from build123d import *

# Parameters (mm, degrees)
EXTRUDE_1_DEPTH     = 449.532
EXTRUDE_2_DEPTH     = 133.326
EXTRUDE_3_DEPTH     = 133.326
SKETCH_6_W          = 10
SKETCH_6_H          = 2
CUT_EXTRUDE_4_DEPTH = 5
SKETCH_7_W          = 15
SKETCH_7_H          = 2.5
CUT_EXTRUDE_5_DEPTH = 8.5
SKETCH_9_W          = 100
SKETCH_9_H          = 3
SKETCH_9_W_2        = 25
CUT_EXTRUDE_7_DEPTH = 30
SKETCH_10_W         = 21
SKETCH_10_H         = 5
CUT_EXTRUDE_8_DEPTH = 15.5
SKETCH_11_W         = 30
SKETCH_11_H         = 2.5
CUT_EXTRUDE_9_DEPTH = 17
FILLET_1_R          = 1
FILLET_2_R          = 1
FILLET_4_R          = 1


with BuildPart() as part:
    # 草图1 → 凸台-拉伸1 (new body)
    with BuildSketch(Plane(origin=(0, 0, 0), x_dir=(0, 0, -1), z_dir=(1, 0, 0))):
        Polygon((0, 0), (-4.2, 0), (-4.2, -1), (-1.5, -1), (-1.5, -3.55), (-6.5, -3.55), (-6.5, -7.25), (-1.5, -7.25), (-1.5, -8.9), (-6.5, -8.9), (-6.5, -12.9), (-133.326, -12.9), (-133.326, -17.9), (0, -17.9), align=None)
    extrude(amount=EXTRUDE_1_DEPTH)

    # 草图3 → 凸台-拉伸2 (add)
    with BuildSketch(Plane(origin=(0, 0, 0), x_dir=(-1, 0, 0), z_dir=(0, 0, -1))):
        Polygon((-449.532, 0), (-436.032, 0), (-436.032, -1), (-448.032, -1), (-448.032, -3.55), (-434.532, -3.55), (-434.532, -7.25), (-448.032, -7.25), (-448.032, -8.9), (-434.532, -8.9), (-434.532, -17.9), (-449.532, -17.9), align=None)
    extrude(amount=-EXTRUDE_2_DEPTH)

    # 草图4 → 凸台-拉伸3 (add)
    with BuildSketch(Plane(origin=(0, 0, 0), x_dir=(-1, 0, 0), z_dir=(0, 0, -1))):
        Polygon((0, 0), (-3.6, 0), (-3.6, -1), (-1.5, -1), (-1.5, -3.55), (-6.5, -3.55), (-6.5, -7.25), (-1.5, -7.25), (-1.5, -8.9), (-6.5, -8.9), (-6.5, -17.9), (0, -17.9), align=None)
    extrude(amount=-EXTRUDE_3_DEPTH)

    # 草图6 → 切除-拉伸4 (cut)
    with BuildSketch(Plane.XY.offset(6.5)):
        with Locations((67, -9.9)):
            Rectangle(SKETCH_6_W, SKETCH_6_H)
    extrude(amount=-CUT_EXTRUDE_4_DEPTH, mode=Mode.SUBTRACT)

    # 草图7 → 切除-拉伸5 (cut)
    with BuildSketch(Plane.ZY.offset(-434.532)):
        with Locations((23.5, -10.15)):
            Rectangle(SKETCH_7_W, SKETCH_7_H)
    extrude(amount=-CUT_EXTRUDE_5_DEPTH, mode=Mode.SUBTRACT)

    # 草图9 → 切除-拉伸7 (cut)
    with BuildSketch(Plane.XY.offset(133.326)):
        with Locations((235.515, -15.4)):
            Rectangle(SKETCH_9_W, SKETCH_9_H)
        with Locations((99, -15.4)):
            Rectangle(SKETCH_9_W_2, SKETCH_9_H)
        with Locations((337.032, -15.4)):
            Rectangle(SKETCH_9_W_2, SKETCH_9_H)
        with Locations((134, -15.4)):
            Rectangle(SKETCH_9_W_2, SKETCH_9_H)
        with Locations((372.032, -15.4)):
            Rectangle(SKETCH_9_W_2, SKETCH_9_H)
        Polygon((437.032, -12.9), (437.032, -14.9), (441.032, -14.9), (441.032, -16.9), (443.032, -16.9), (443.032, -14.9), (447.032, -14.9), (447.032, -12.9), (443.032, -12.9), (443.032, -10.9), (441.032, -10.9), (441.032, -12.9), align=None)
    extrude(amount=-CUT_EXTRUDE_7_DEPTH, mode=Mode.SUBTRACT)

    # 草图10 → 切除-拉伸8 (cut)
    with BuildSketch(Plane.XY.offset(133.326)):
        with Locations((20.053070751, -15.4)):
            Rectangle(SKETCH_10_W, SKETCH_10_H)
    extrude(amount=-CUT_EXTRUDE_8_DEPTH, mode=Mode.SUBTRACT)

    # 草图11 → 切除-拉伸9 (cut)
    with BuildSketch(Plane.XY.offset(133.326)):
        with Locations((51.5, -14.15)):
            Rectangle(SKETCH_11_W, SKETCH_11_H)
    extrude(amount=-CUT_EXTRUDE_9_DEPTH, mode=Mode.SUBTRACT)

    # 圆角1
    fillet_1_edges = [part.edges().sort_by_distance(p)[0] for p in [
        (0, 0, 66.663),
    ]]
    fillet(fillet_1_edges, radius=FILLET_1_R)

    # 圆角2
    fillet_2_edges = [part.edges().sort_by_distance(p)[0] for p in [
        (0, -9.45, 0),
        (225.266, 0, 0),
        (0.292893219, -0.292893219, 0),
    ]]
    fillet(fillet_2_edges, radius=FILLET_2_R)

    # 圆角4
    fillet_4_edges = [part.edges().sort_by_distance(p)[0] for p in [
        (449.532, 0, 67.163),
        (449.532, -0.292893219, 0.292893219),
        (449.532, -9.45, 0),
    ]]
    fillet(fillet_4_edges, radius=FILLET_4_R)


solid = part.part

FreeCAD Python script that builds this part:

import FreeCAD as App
import Part
import Sketcher

V = App.Vector


def edges_at(feature, points):
    """Names of the edges that pass closest to the given points."""
    edges = feature.Shape.Edges
    near = lambda p: min(range(len(edges)), key=lambda i: edges[i].distToShape(Part.Vertex(*p))[0])
    return sorted({f"Edge{near(p) + 1}" for p in points})


def add_polygon(sketch, points):
    """Adds a closed chain of lines whose ends are joined by coincident constraints."""
    first, n = sketch.GeometryCount, len(points)
    for a, b in zip(points, points[1:] + points[:1]):
        sketch.addGeometry(Part.LineSegment(App.Vector(*a, 0), App.Vector(*b, 0)), False)
    for i in range(n):
        sketch.addConstraint(Sketcher.Constraint("Coincident", first + i, 2, first + (i + 1) % n, 1))

doc = App.newDocument("Part")
params = doc.addObject("Spreadsheet::Sheet", "Params")
for row, (alias, value) in enumerate([
    ("sketch1_width", "1 mm"),
    ("sketch1_width2", "4 mm"),
    ("sketch1_width3", "5 mm"),
    ("sketch1_width4", "3.7 mm"),
    ("sketch1_width5", "17.9 mm"),
    ("pad1_length", "449.532 mm"),
    ("sketch2_width", "15 mm"),
    ("sketch2_width2", "12 mm"),
    ("sketch2_height", "9 mm"),
    ("sketch2_height2", "1 mm"),
    ("sketch2_height3", "17.9 mm"),
    ("pad2_length", "133.326 mm"),
    ("sketch3_width", "5 mm"),
    ("sketch3_height", "1 mm"),
    ("sketch3_height2", "9 mm"),
    ("sketch3_width2", "3.6 mm"),
    ("sketch3_width3", "2.1 mm"),
    ("pad3_length", "133.326 mm"),
    ("sketch4_width", "10 mm"),
    ("sketch4_height", "2 mm"),
    ("pocket1_length", "5 mm"),
    ("sketch5_height", "15 mm"),
    ("sketch5_width", "2.5 mm"),
    ("pocket2_length", "8.5 mm"),
    ("sketch6_width", "100 mm"),
    ("sketch6_width2", "25 mm"),
    ("sketch6_width3", "4 mm"),
    ("sketch6_width4", "2 mm"),
    ("sketch6_height", "3 mm"),
    ("pocket3_length", "30 mm"),
    ("sketch7_width", "21 mm"),
    ("sketch7_height", "5 mm"),
    ("pocket4_length", "15.5 mm"),
    ("sketch8_width", "30 mm"),
    ("sketch8_height", "2.5 mm"),
    ("pocket5_length", "17 mm"),
    ("fillet_radius", "1 mm"),
    ("fillet2_radius", "1 mm"),
    ("fillet3_radius", "1 mm"),
], start=1):
    params.set(f"A{row}", alias)
    params.set(f"B{row}", "=" + value)
    params.setAlias(f"B{row}", alias)

body = doc.addObject("PartDesign::Body", "Body")

sketch1 = body.newObject("Sketcher::SketchObject", "Sketch")
sketch1.AttachmentSupport = (doc.getObject("YZ_Plane"), [""])
sketch1.MapMode = "FlatFace"
add_polygon(sketch1, [(0, 0), (0, 4.2), (-1, 4.2), (-1, 1.5), (-3.5, 1.5), (-3.5, 6.5), (-7.2, 6.5), (-7.2, 1.5), (-8.9, 1.5), (-8.9, 6.5), (-12.9, 6.5), (-12.9, 133.3), (-17.9, 133.3), (-17.9, 0)])
sketch1.addConstraint(Sketcher.Constraint("Vertical", 0))
sketch1.addConstraint(Sketcher.Constraint("Horizontal", 1))
sketch1.addConstraint(Sketcher.Constraint("Vertical", 2))
sketch1.addConstraint(Sketcher.Constraint("Horizontal", 3))
sketch1.addConstraint(Sketcher.Constraint("Vertical", 4))
sketch1.addConstraint(Sketcher.Constraint("Horizontal", 5))
sketch1.addConstraint(Sketcher.Constraint("Vertical", 6))
sketch1.addConstraint(Sketcher.Constraint("Horizontal", 7))
sketch1.addConstraint(Sketcher.Constraint("Vertical", 8))
sketch1.addConstraint(Sketcher.Constraint("Horizontal", 9))
sketch1.addConstraint(Sketcher.Constraint("Vertical", 10))
sketch1.addConstraint(Sketcher.Constraint("Horizontal", 11))
sketch1.addConstraint(Sketcher.Constraint("Vertical", 12))
sketch1.addConstraint(Sketcher.Constraint("Horizontal", 13))
sketch1.addConstraint(Sketcher.Constraint("Coincident", 13, 2, -1, 1))
sketch1.addConstraint(Sketcher.Constraint("Horizontal", 3, 2, 6, 2))
sketch1.addConstraint(Sketcher.Constraint("Horizontal", 5, 2, 8, 2))
sketch1.addConstraint(Sketcher.Constraint("Equal", 11, 4))
sketch1.addConstraint(Sketcher.Constraint("DistanceX", 1, 2, 1, 1, 1.0))
sketch1.addConstraint(Sketcher.Constraint("DistanceX", 9, 2, 9, 1, 4.0))
sketch1.addConstraint(Sketcher.Constraint("DistanceX", 11, 2, 11, 1, 5.0))
sketch1.addConstraint(Sketcher.Constraint("DistanceX", 5, 2, 5, 1, 3.7))
sketch1.addConstraint(Sketcher.Constraint("DistanceX", 13, 1, 13, 2, 17.9))
sketch1.addConstraint(Sketcher.Constraint("DistanceY", 0, 1, 0, 2, 4.2))
sketch1.addConstraint(Sketcher.Constraint("DistanceY", 2, 2, 2, 1, 2.7))
sketch1.addConstraint(Sketcher.Constraint("DistanceX", 3, 2, 3, 1, 2.55))
sketch1.addConstraint(Sketcher.Constraint("DistanceY", 10, 1, 10, 2, 126.826))
sketch1.setExpression("Constraints[32]", "Params.sketch1_width")
sketch1.setExpression("Constraints[33]", "Params.sketch1_width2")
sketch1.setExpression("Constraints[34]", "Params.sketch1_width3")
sketch1.setExpression("Constraints[35]", "Params.sketch1_width4")
sketch1.setExpression("Constraints[36]", "Params.sketch1_width5")
pad1 = body.newObject("PartDesign::Pad", "Pad")
pad1.Profile = sketch1
pad1.setExpression("Length", "Params.pad1_length")

sketch2 = body.newObject("Sketcher::SketchObject", "Sketch001")
sketch2.AttachmentSupport = (doc.getObject("XY_Plane"), [""])
sketch2.MapMode = "FlatFace"
add_polygon(sketch2, [(436, 0), (449.5, 0), (449.5, -17.9), (434.5, -17.9), (434.5, -8.9), (448, -8.9), (448, -7.2), (434.5, -7.2), (434.5, -3.5), (448, -3.5), (448, -1), (436, -1)])
sketch2.addConstraint(Sketcher.Constraint("Horizontal", 0))
sketch2.addConstraint(Sketcher.Constraint("Vertical", 1))
sketch2.addConstraint(Sketcher.Constraint("Horizontal", 2))
sketch2.addConstraint(Sketcher.Constraint("Vertical", 3))
sketch2.addConstraint(Sketcher.Constraint("Horizontal", 4))
sketch2.addConstraint(Sketcher.Constraint("Vertical", 5))
sketch2.addConstraint(Sketcher.Constraint("Horizontal", 6))
sketch2.addConstraint(Sketcher.Constraint("Vertical", 7))
sketch2.addConstraint(Sketcher.Constraint("Horizontal", 8))
sketch2.addConstraint(Sketcher.Constraint("Vertical", 9))
sketch2.addConstraint(Sketcher.Constraint("Horizontal", 10))
sketch2.addConstraint(Sketcher.Constraint("Vertical", 11))
sketch2.addConstraint(Sketcher.Constraint("PointOnObject", 0, 2, -1))
sketch2.addConstraint(Sketcher.Constraint("Vertical", 3, 2, 6, 2))
sketch2.addConstraint(Sketcher.Constraint("Vertical", 5, 2, 8, 2))
sketch2.addConstraint(Sketcher.Constraint("Equal", 0, 4))
sketch2.addConstraint(Sketcher.Constraint("DistanceX", 2, 2, 2, 1, 15.0))
sketch2.addConstraint(Sketcher.Constraint("DistanceX", 10, 2, 10, 1, 12.0))
sketch2.addConstraint(Sketcher.Constraint("DistanceY", 3, 1, 3, 2, 9.0))
sketch2.addConstraint(Sketcher.Constraint("DistanceY", 11, 1, 11, 2, 1.0))
sketch2.addConstraint(Sketcher.Constraint("DistanceY", 1, 2, 1, 1, 17.9))
sketch2.addConstraint(Sketcher.Constraint("DistanceY", 7, 1, 7, 2, 3.7))
sketch2.addConstraint(Sketcher.Constraint("DistanceY", 5, 1, 5, 2, 1.65))
sketch2.addConstraint(Sketcher.Constraint("DistanceX", -1, 1, 0, 2, 449.532))
sketch2.setExpression("Constraints[28]", "Params.sketch2_width")
sketch2.setExpression("Constraints[29]", "Params.sketch2_width2")
sketch2.setExpression("Constraints[30]", "Params.sketch2_height")
sketch2.setExpression("Constraints[31]", "Params.sketch2_height2")
sketch2.setExpression("Constraints[32]", "Params.sketch2_height3")
pad2 = body.newObject("PartDesign::Pad", "Pad001")
pad2.Profile = sketch2
pad2.setExpression("Length", "Params.pad2_length")

sketch3 = body.newObject("Sketcher::SketchObject", "Sketch002")
sketch3.AttachmentSupport = (doc.getObject("XY_Plane"), [""])
sketch3.MapMode = "FlatFace"
add_polygon(sketch3, [(0, 0), (3.6, 0), (3.6, -1), (1.5, -1), (1.5, -3.5), (6.5, -3.5), (6.5, -7.2), (1.5, -7.2), (1.5, -8.9), (6.5, -8.9), (6.5, -17.9), (0, -17.9)])
sketch3.addConstraint(Sketcher.Constraint("Horizontal", 0))
sketch3.addConstraint(Sketcher.Constraint("Vertical", 1))
sketch3.addConstraint(Sketcher.Constraint("Horizontal", 2))
sketch3.addConstraint(Sketcher.Constraint("Vertical", 3))
sketch3.addConstraint(Sketcher.Constraint("Horizontal", 4))
sketch3.addConstraint(Sketcher.Constraint("Vertical", 5))
sketch3.addConstraint(Sketcher.Constraint("Horizontal", 6))
sketch3.addConstraint(Sketcher.Constraint("Vertical", 7))
sketch3.addConstraint(Sketcher.Constraint("Horizontal", 8))
sketch3.addConstraint(Sketcher.Constraint("Vertical", 9))
sketch3.addConstraint(Sketcher.Constraint("Horizontal", 10))
sketch3.addConstraint(Sketcher.Constraint("Vertical", 11))
sketch3.addConstraint(Sketcher.Constraint("Coincident", 11, 2, -1, 1))
sketch3.addConstraint(Sketcher.Constraint("Vertical", 3, 2, 6, 2))
sketch3.addConstraint(Sketcher.Constraint("Vertical", 5, 2, 8, 2))
sketch3.addConstraint(Sketcher.Constraint("DistanceX", 4, 1, 4, 2, 5.0))
sketch3.addConstraint(Sketcher.Constraint("DistanceY", 1, 2, 1, 1, 1.0))
sketch3.addConstraint(Sketcher.Constraint("DistanceY", 9, 2, 9, 1, 9.0))
sketch3.addConstraint(Sketcher.Constraint("DistanceX", 0, 1, 0, 2, 3.6))
sketch3.addConstraint(Sketcher.Constraint("DistanceX", 2, 2, 2, 1, 2.1))
sketch3.addConstraint(Sketcher.Constraint("DistanceY", 5, 2, 5, 1, 3.7))
sketch3.addConstraint(Sketcher.Constraint("DistanceY", 11, 1, 11, 2, 17.9))
sketch3.addConstraint(Sketcher.Constraint("DistanceY", 3, 2, 3, 1, 2.55))
sketch3.setExpression("Constraints[27]", "Params.sketch3_width")
sketch3.setExpression("Constraints[28]", "Params.sketch3_height")
sketch3.setExpression("Constraints[29]", "Params.sketch3_height2")
sketch3.setExpression("Constraints[30]", "Params.sketch3_width2")
sketch3.setExpression("Constraints[31]", "Params.sketch3_width3")
pad3 = body.newObject("PartDesign::Pad", "Pad002")
pad3.Profile = sketch3
pad3.setExpression("Length", "Params.pad3_length")

sketch4 = body.newObject("Sketcher::SketchObject", "Sketch003")
sketch4.AttachmentSupport = (doc.getObject("XY_Plane"), [""])
sketch4.MapMode = "FlatFace"
sketch4.AttachmentOffset = App.Placement(V(0, 0, 6.5), App.Rotation())
add_polygon(sketch4, [(62, -8.9), (62, -10.9), (72, -10.9), (72, -8.9)])
sketch4.addConstraint(Sketcher.Constraint("Vertical", 0))
sketch4.addConstraint(Sketcher.Constraint("Horizontal", 1))
sketch4.addConstraint(Sketcher.Constraint("Vertical", 2))
sketch4.addConstraint(Sketcher.Constraint("Horizontal", 3))
sketch4.addConstraint(Sketcher.Constraint("DistanceX", 1, 1, 1, 2, 10.0))
sketch4.addConstraint(Sketcher.Constraint("DistanceY", 0, 2, 0, 1, 2.0))
sketch4.addConstraint(Sketcher.Constraint("DistanceX", -1, 1, 0, 2, 62.0))
sketch4.addConstraint(Sketcher.Constraint("DistanceY", 0, 2, -1, 1, 10.9))
sketch4.setExpression("Constraints[8]", "Params.sketch4_width")
sketch4.setExpression("Constraints[9]", "Params.sketch4_height")
pocket1 = body.newObject("PartDesign::Pocket", "Pocket")
pocket1.Profile = sketch4
pocket1.setExpression("Length", "Params.pocket1_length")

sketch5 = body.newObject("Sketcher::SketchObject", "Sketch004")
sketch5.AttachmentSupport = (doc.getObject("YZ_Plane"), [""])
sketch5.MapMode = "FlatFace"
sketch5.AttachmentOffset = App.Placement(V(0, 0, 434.532), App.Rotation())
add_polygon(sketch5, [(-8.9, 16), (-11.4, 16), (-11.4, 31), (-8.9, 31)])
sketch5.addConstraint(Sketcher.Constraint("Horizontal", 0))
sketch5.addConstraint(Sketcher.Constraint("Vertical", 1))
sketch5.addConstraint(Sketcher.Constraint("Horizontal", 2))
sketch5.addConstraint(Sketcher.Constraint("Vertical", 3))
sketch5.addConstraint(Sketcher.Constraint("DistanceY", 1, 1, 1, 2, 15.0))
sketch5.addConstraint(Sketcher.Constraint("DistanceX", 0, 2, 0, 1, 2.5))
sketch5.addConstraint(Sketcher.Constraint("DistanceY", -1, 1, 0, 2, 16.0))
sketch5.addConstraint(Sketcher.Constraint("DistanceX", 0, 2, -1, 1, 11.4))
sketch5.setExpression("Constraints[8]", "Params.sketch5_height")
sketch5.setExpression("Constraints[9]", "Params.sketch5_width")
pocket2 = body.newObject("PartDesign::Pocket", "Pocket001")
pocket2.Profile = sketch5
pocket2.setExpression("Length", "Params.pocket2_length")
pocket2.Reversed = True

sketch6 = body.newObject("Sketcher::SketchObject", "Sketch005")
sketch6.AttachmentSupport = (doc.getObject("XY_Plane"), [""])
sketch6.MapMode = "FlatFace"
sketch6.AttachmentOffset = App.Placement(V(0, 0, 133.326), App.Rotation())
add_polygon(sketch6, [(185.5, -13.9), (185.5, -16.9), (285.5, -16.9), (285.5, -13.9)])
add_polygon(sketch6, [(86.5, -13.9), (86.5, -16.9), (111.5, -16.9), (111.5, -13.9)])
add_polygon(sketch6, [(324.5, -13.9), (324.5, -16.9), (349.5, -16.9), (349.5, -13.9)])
add_polygon(sketch6, [(121.5, -13.9), (121.5, -16.9), (146.5, -16.9), (146.5, -13.9)])
add_polygon(sketch6, [(359.5, -13.9), (359.5, -16.9), (384.5, -16.9), (384.5, -13.9)])
add_polygon(sketch6, [(437, -12.9), (437, -14.9), (441, -14.9), (441, -16.9), (443, -16.9), (443, -14.9), (447, -14.9), (447, -12.9), (443, -12.9), (443, -10.9), (441, -10.9), (441, -12.9)])
sketch6.addConstraint(Sketcher.Constraint("Vertical", 0))
sketch6.addConstraint(Sketcher.Constraint("Horizontal", 1))
sketch6.addConstraint(Sketcher.Constraint("Vertical", 2))
sketch6.addConstraint(Sketcher.Constraint("Horizontal", 3))
sketch6.addConstraint(Sketcher.Constraint("Vertical", 4))
sketch6.addConstraint(Sketcher.Constraint("Horizontal", 5))
sketch6.addConstraint(Sketcher.Constraint("Vertical", 6))
sketch6.addConstraint(Sketcher.Constraint("Horizontal", 7))
sketch6.addConstraint(Sketcher.Constraint("Vertical", 8))
sketch6.addConstraint(Sketcher.Constraint("Horizontal", 9))
sketch6.addConstraint(Sketcher.Constraint("Vertical", 10))
sketch6.addConstraint(Sketcher.Constraint("Horizontal", 11))
sketch6.addConstraint(Sketcher.Constraint("Vertical", 12))
sketch6.addConstraint(Sketcher.Constraint("Horizontal", 13))
sketch6.addConstraint(Sketcher.Constraint("Vertical", 14))
sketch6.addConstraint(Sketcher.Constraint("Horizontal", 15))
sketch6.addConstraint(Sketcher.Constraint("Vertical", 16))
sketch6.addConstraint(Sketcher.Constraint("Horizontal", 17))
sketch6.addConstraint(Sketcher.Constraint("Vertical", 18))
sketch6.addConstraint(Sketcher.Constraint("Horizontal", 19))
sketch6.addConstraint(Sketcher.Constraint("Vertical", 20))
sketch6.addConstraint(Sketcher.Constraint("Horizontal", 21))
sketch6.addConstraint(Sketcher.Constraint("Vertical", 22))
sketch6.addConstraint(Sketcher.Constraint("Horizontal", 23))
sketch6.addConstraint(Sketcher.Constraint("Vertical", 24))
sketch6.addConstraint(Sketcher.Constraint("Horizontal", 25))
sketch6.addConstraint(Sketcher.Constraint("Vertical", 26))
sketch6.addConstraint(Sketcher.Constraint("Horizontal", 27))
sketch6.addConstraint(Sketcher.Constraint("Vertical", 28))
sketch6.addConstraint(Sketcher.Constraint("Horizontal", 29))
sketch6.addConstraint(Sketcher.Constraint("Vertical", 30))
sketch6.addConstraint(Sketcher.Constraint("Horizontal", 31))
sketch6.addConstraint(Sketcher.Constraint("Horizontal", 1, 2, 4, 2))
sketch6.addConstraint(Sketcher.Constraint("Horizontal", 3, 2, 6, 2))
sketch6.addConstraint(Sketcher.Constraint("Horizontal", 5, 2, 8, 2))
sketch6.addConstraint(Sketcher.Constraint("Horizontal", 7, 2, 10, 2))
sketch6.addConstraint(Sketcher.Constraint("Horizontal", 9, 2, 12, 2))
sketch6.addConstraint(Sketcher.Constraint("Horizontal", 11, 2, 14, 2))
sketch6.addConstraint(Sketcher.Constraint("Horizontal", 13, 2, 16, 2))
sketch6.addConstraint(Sketcher.Constraint("Horizontal", 15, 2, 18, 2))
sketch6.addConstraint(Sketcher.Constraint("Horizontal", 17, 2, 22, 2))
sketch6.addConstraint(Sketcher.Constraint("Horizontal", 21, 2, 24, 2))
sketch6.addConstraint(Sketcher.Constraint("Horizontal", 27, 2, 30, 2))
sketch6.addConstraint(Sketcher.Constraint("Vertical", 24, 2, 27, 2))
sketch6.addConstraint(Sketcher.Constraint("Vertical", 22, 2, 29, 2))
sketch6.addConstraint(Sketcher.Constraint("Equal", 7, 9))
sketch6.addConstraint(Sketcher.Constraint("Equal", 11, 13))
sketch6.addConstraint(Sketcher.Constraint("Equal", 15, 17))
sketch6.addConstraint(Sketcher.Constraint("Equal", 21, 25))
sketch6.addConstraint(Sketcher.Constraint("Equal", 29, 20))
sketch6.addConstraint(Sketcher.Constraint("Equal", 20, 22))
sketch6.addConstraint(Sketcher.Constraint("Equal", 26, 28))
sketch6.addConstraint(Sketcher.Constraint("DistanceX", 1, 1, 1, 2, 100.0))
sketch6.addConstraint(Sketcher.Constraint("DistanceX", 5, 1, 5, 2, 25.0))
sketch6.addConstraint(Sketcher.Constraint("DistanceX", 21, 1, 21, 2, 4.0))
sketch6.addConstraint(Sketcher.Constraint("DistanceX", 23, 1, 23, 2, 2.0))
sketch6.addConstraint(Sketcher.Constraint("DistanceY", 0, 2, 0, 1, 3.0))
sketch6.addConstraint(Sketcher.Constraint("DistanceX", 5, 2, 12, 2, 10.0))
sketch6.addConstraint(Sketcher.Constraint("DistanceX", 9, 2, 16, 2, 10.0))
sketch6.addConstraint(Sketcher.Constraint("DistanceY", 0, 2, -1, 1, 16.9))
sketch6.addConstraint(Sketcher.Constraint("DistanceX", -1, 1, 4, 2, 86.5))
sketch6.addConstraint(Sketcher.Constraint("DistanceX", 18, 2, 20, 2, 52.5))
sketch6.addConstraint(Sketcher.Constraint("DistanceX", -1, 1, 0, 2, 185.515))
sketch6.addConstraint(Sketcher.Constraint("DistanceX", -1, 1, 8, 2, 324.532))
sketch6.setExpression("Constraints[84]", "Params.sketch6_width")
sketch6.setExpression("Constraints[85]", "Params.sketch6_width2")
sketch6.setExpression("Constraints[86]", "Params.sketch6_width3")
sketch6.setExpression("Constraints[87]", "Params.sketch6_width4")
sketch6.setExpression("Constraints[88]", "Params.sketch6_height")
pocket3 = body.newObject("PartDesign::Pocket", "Pocket002")
pocket3.Profile = sketch6
pocket3.setExpression("Length", "Params.pocket3_length")

sketch7 = body.newObject("Sketcher::SketchObject", "Sketch006")
sketch7.AttachmentSupport = (doc.getObject("XY_Plane"), [""])
sketch7.MapMode = "FlatFace"
sketch7.AttachmentOffset = App.Placement(V(0, 0, 133.326), App.Rotation())
add_polygon(sketch7, [(9.6, -12.9), (9.6, -17.9), (30.6, -17.9), (30.6, -12.9)])
sketch7.addConstraint(Sketcher.Constraint("Vertical", 0))
sketch7.addConstraint(Sketcher.Constraint("Horizontal", 1))
sketch7.addConstraint(Sketcher.Constraint("Vertical", 2))
sketch7.addConstraint(Sketcher.Constraint("Horizontal", 3))
sketch7.addConstraint(Sketcher.Constraint("DistanceX", 1, 1, 1, 2, 21.0))
sketch7.addConstraint(Sketcher.Constraint("DistanceY", 0, 2, 0, 1, 5.0))
sketch7.addConstraint(Sketcher.Constraint("DistanceY", 0, 2, -1, 1, 17.9))
sketch7.addConstraint(Sketcher.Constraint("DistanceX", -1, 1, 0, 2, 9.553071))
sketch7.setExpression("Constraints[8]", "Params.sketch7_width")
sketch7.setExpression("Constraints[9]", "Params.sketch7_height")
pocket4 = body.newObject("PartDesign::Pocket", "Pocket003")
pocket4.Profile = sketch7
pocket4.setExpression("Length", "Params.pocket4_length")

sketch8 = body.newObject("Sketcher::SketchObject", "Sketch007")
sketch8.AttachmentSupport = (doc.getObject("XY_Plane"), [""])
sketch8.MapMode = "FlatFace"
sketch8.AttachmentOffset = App.Placement(V(0, 0, 133.326), App.Rotation())
add_polygon(sketch8, [(36.5, -12.9), (36.5, -15.4), (66.5, -15.4), (66.5, -12.9)])
sketch8.addConstraint(Sketcher.Constraint("Vertical", 0))
sketch8.addConstraint(Sketcher.Constraint("Horizontal", 1))
sketch8.addConstraint(Sketcher.Constraint("Vertical", 2))
sketch8.addConstraint(Sketcher.Constraint("Horizontal", 3))
sketch8.addConstraint(Sketcher.Constraint("DistanceX", 1, 1, 1, 2, 30.0))
sketch8.addConstraint(Sketcher.Constraint("DistanceY", 0, 2, 0, 1, 2.5))
sketch8.addConstraint(Sketcher.Constraint("DistanceX", -1, 1, 0, 2, 36.5))
sketch8.addConstraint(Sketcher.Constraint("DistanceY", 0, 2, -1, 1, 15.4))
sketch8.setExpression("Constraints[8]", "Params.sketch8_width")
sketch8.setExpression("Constraints[9]", "Params.sketch8_height")
pocket5 = body.newObject("PartDesign::Pocket", "Pocket004")
pocket5.Profile = sketch8
pocket5.setExpression("Length", "Params.pocket5_length")
doc.recompute()

fillet = body.newObject("PartDesign::Fillet", "Fillet")
fillet.Base = (pocket5, edges_at(pocket5, [(0, 0, 66.663)]))
fillet.setExpression("Radius", "Params.fillet_radius")
doc.recompute()

fillet2 = body.newObject("PartDesign::Fillet", "Fillet001")
fillet2.Base = (fillet, edges_at(fillet, [(0, -9.45, 0), (225.266, 0, 0), (0.293, -0.293, 0)]))
fillet2.setExpression("Radius", "Params.fillet2_radius")
doc.recompute()

fillet3 = body.newObject("PartDesign::Fillet", "Fillet002")
fillet3.Base = (fillet2, edges_at(fillet2, [(449.532, 0, 67.163), (449.532, -0.293, 0.293), (449.532, -9.45, 0)]))
fillet3.setExpression("Radius", "Params.fillet3_radius")

doc.recompute()
